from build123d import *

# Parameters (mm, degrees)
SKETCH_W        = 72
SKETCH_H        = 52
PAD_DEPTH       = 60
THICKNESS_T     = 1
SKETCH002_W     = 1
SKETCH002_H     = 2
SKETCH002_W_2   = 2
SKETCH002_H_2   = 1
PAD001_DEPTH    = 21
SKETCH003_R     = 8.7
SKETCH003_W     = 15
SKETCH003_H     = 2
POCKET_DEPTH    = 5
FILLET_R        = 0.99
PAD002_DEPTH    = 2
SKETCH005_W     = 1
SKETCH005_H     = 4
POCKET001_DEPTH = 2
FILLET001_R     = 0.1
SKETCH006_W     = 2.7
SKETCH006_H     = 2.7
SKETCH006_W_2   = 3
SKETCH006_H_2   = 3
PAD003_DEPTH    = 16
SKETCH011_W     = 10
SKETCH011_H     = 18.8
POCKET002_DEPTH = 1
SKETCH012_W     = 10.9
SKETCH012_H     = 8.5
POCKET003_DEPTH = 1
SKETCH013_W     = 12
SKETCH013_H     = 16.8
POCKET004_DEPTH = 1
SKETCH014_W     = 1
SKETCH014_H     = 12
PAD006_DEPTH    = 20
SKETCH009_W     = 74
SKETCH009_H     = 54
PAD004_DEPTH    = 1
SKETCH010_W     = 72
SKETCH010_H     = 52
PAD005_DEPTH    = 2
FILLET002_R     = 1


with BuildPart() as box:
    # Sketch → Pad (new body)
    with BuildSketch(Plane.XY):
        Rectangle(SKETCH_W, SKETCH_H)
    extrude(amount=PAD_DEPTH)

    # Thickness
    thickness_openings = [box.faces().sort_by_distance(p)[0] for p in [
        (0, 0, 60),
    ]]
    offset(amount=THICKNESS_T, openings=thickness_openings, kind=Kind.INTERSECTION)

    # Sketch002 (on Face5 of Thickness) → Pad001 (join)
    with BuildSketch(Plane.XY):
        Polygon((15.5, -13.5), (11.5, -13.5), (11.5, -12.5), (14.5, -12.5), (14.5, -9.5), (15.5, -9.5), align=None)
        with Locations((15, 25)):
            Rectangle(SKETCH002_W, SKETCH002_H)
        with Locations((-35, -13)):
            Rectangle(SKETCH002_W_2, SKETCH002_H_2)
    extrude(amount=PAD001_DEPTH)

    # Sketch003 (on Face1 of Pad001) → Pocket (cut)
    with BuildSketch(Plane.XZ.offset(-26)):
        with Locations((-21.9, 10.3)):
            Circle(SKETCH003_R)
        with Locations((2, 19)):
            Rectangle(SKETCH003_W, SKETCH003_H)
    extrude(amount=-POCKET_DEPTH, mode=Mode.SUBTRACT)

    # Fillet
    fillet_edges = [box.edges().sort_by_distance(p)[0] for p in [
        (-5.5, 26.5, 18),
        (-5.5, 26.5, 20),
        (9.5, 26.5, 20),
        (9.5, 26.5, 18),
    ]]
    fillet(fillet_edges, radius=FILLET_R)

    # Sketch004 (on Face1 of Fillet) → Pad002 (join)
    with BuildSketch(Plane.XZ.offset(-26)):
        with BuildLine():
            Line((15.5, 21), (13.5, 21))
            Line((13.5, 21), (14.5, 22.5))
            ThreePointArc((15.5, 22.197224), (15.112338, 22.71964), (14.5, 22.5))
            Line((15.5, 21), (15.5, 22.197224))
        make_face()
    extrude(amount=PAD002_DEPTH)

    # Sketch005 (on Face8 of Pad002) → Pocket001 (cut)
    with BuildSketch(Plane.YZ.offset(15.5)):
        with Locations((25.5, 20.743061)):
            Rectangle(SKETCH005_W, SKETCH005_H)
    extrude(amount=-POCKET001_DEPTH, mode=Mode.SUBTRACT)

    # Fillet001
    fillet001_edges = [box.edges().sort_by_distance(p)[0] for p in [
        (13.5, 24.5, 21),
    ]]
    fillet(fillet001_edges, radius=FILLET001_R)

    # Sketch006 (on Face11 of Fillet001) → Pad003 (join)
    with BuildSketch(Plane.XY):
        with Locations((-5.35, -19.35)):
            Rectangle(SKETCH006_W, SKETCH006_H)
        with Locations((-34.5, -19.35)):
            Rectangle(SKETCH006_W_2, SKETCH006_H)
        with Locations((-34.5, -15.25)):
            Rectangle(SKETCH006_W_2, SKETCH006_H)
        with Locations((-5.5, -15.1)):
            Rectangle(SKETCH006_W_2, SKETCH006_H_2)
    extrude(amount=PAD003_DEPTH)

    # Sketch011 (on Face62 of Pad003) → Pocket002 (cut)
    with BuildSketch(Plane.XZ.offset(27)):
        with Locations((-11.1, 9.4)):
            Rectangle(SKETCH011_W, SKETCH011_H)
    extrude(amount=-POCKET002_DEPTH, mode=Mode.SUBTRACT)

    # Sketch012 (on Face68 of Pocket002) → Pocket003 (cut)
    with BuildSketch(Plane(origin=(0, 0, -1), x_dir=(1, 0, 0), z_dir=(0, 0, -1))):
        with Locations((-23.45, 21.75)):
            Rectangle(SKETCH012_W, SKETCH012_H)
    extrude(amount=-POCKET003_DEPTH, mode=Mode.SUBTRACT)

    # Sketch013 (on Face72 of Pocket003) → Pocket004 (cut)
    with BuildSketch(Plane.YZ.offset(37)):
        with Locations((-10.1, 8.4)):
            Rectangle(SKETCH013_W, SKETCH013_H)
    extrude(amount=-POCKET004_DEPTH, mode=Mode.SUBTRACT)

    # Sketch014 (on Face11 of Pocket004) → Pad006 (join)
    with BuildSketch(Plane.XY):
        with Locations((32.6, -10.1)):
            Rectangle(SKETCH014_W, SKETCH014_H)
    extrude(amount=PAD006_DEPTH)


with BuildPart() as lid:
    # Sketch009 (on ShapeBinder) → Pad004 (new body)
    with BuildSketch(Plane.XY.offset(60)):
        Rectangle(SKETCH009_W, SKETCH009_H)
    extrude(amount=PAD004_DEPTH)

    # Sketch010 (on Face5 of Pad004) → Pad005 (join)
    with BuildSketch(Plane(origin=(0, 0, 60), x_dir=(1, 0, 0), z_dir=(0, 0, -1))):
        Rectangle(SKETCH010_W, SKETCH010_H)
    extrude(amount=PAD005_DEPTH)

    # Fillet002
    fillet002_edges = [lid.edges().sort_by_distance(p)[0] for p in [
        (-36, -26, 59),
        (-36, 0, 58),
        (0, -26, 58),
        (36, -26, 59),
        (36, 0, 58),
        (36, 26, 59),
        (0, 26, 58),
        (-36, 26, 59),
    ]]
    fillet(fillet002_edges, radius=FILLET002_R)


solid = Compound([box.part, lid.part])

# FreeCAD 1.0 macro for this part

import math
import FreeCAD as App
import Part
import Sketcher

V = App.Vector


def edges_at(feature, points):
    """Names of the edges that pass closest to the given points."""
    edges = feature.Shape.Edges
    near = lambda p: min(range(len(edges)), key=lambda i: edges[i].distToShape(Part.Vertex(*p))[0])
    return sorted({f"Edge{near(p) + 1}" for p in points})


def faces_at(feature, points):
    """Names of the faces that lie closest to the given points."""
    faces = feature.Shape.Faces
    near = lambda p: min(range(len(faces)), key=lambda i: faces[i].distToShape(Part.Vertex(*p))[0])
    return sorted({f"Face{near(p) + 1}" for p in points})


def add_polygon(sketch, points):
    """Adds a closed chain of lines whose ends are joined by coincident constraints."""
    first, n = sketch.GeometryCount, len(points)
    for a, b in zip(points, points[1:] + points[:1]):
        sketch.addGeometry(Part.LineSegment(App.Vector(*a, 0), App.Vector(*b, 0)), False)
    for i in range(n):
        sketch.addConstraint(Sketcher.Constraint("Coincident", first + i, 2, first + (i + 1) % n, 1))

doc = App.newDocument("Part")
body = doc.addObject("PartDesign::Body", "Body")

sketch1 = body.newObject("Sketcher::SketchObject", "Sketch")
sketch1.AttachmentSupport = (doc.getObject("XY_Plane"), [""])
sketch1.MapMode = "FlatFace"
add_polygon(sketch1, [(-36, 26), (-36, -26), (36, -26), (36, 26)])
sketch1.addConstraint(Sketcher.Constraint("Vertical", 0))
sketch1.addConstraint(Sketcher.Constraint("Horizontal", 1))
sketch1.addConstraint(Sketcher.Constraint("Vertical", 2))
sketch1.addConstraint(Sketcher.Constraint("Horizontal", 3))
sketch1.addConstraint(Sketcher.Constraint("Symmetric", 0, 2, 2, 2, -1, 1))
sketch1.addConstraint(Sketcher.Constraint("DistanceX", 1, 1, 1, 2, 72.0))
sketch1.addConstraint(Sketcher.Constraint("DistanceY", 0, 2, 0, 1, 52.0))
pad1 = body.newObject("PartDesign::Pad", "Pad")
pad1.Profile = sketch1
pad1.Length = 60
doc.recompute()

thickness = body.newObject("PartDesign::Thickness", "Thickness")
thickness.Base = (pad1, faces_at(pad1, [(0, 0, 60)]))
thickness.Value = 1
thickness.Reversed = False
thickness.Join = "Intersection"

sketch2 = body.newObject("Sketcher::SketchObject", "Sketch001")
sketch2.AttachmentSupport = (doc.getObject("XY_Plane"), [""])
sketch2.MapMode = "FlatFace"
add_polygon(sketch2, [(11.5, -13.5), (15.5, -13.5), (15.5, -9.5), (14.5, -9.5), (14.5, -12.5), (11.5, -12.5)])
add_polygon(sketch2, [(14.5, 26), (14.5, 24), (15.5, 24), (15.5, 26)])
add_polygon(sketch2, [(-36, -12.5), (-36, -13.5), (-34, -13.5), (-34, -12.5)])
sketch2.addConstraint(Sketcher.Constraint("Horizontal", 0))
sketch2.addConstraint(Sketcher.Constraint("Vertical", 1))
sketch2.addConstraint(Sketcher.Constraint("Horizontal", 2))
sketch2.addConstraint(Sketcher.Constraint("Vertical", 3))
sketch2.addConstraint(Sketcher.Constraint("Horizontal", 4))
sketch2.addConstraint(Sketcher.Constraint("Vertical", 5))
sketch2.addConstraint(Sketcher.Constraint("Vertical", 6))
sketch2.addConstraint(Sketcher.Constraint("Horizontal", 7))
sketch2.addConstraint(Sketcher.Constraint("Vertical", 8))
sketch2.addConstraint(Sketcher.Constraint("Horizontal", 9))
sketch2.addConstraint(Sketcher.Constraint("Vertical", 10))
sketch2.addConstraint(Sketcher.Constraint("Horizontal", 11))
sketch2.addConstraint(Sketcher.Constraint("Vertical", 12))
sketch2.addConstraint(Sketcher.Constraint("Horizontal", 13))
sketch2.addConstraint(Sketcher.Constraint("Horizontal", 5, 2, 10, 2))
sketch2.addConstraint(Sketcher.Constraint("Horizontal", 4, 2, 12, 2))
sketch2.addConstraint(Sketcher.Constraint("Vertical", 3, 2, 6, 2))
sketch2.addConstraint(Sketcher.Constraint("Vertical", 1, 2, 7, 2))
sketch2.addConstraint(Sketcher.Constraint("Equal", 0, 1))
sketch2.addConstraint(Sketcher.Constraint("Equal", 4, 3))
sketch2.addConstraint(Sketcher.Constraint("Equal", 13, 6))
sketch2.addConstraint(Sketcher.Constraint("DistanceX", 0, 1, 0, 2, 4.0))
sketch2.addConstraint(Sketcher.Constraint("DistanceX", 2, 2, 2, 1, 1.0))
sketch2.addConstraint(Sketcher.Constraint("DistanceX", 11, 1, 11, 2, 2.0))
sketch2.addConstraint(Sketcher.Constraint("DistanceY", -1, 1, 6, 2, 24.0))
sketch2.addConstraint(Sketcher.Constraint("DistanceX", 10, 2, -1, 1, 36.0))
sketch2.addConstraint(Sketcher.Constraint("DistanceX", -1, 1, 0, 2, 15.5))
sketch2.addConstraint(Sketcher.Constraint("DistanceY", 0, 2, -1, 1, 13.5))
pad2 = body.newObject("PartDesign::Pad", "Pad001")
pad2.Profile = sketch2
pad2.Length = 21

sketch3 = body.newObject("Sketcher::SketchObject", "Sketch002")
sketch3.AttachmentSupport = (doc.getObject("XZ_Plane"), [""])
sketch3.MapMode = "FlatFace"
sketch3.AttachmentOffset = App.Placement(V(0, 0, -26), App.Rotation())
sketch3.addGeometry(Part.Circle(V(-21.9, 10.3, 0), V(0, 0, 1), 8.7), False)
add_polygon(sketch3, [(-5.5, 20), (-5.5, 18), (9.5, 18), (9.5, 20)])
sketch3.addConstraint(Sketcher.Constraint("Vertical", 1))
sketch3.addConstraint(Sketcher.Constraint("Horizontal", 2))
sketch3.addConstraint(Sketcher.Constraint("Vertical", 3))
sketch3.addConstraint(Sketcher.Constraint("Horizontal", 4))
sketch3.addConstraint(Sketcher.Constraint("Diameter", 0, 17.4))
sketch3.addConstraint(Sketcher.Constraint("DistanceX", 2, 1, 2, 2, 15.0))
sketch3.addConstraint(Sketcher.Constraint("DistanceY", 1, 2, 1, 1, 2.0))
sketch3.addConstraint(Sketcher.Constraint("DistanceY", -1, 1, 1, 2, 18.0))
sketch3.addConstraint(Sketcher.Constraint("DistanceX", 0, 3, -1, 1, 21.9))
sketch3.addConstraint(Sketcher.Constraint("DistanceY", -1, 1, 0, 3, 10.3))
sketch3.addConstraint(Sketcher.Constraint("DistanceX", 1, 2, -1, 1, 5.5))
pocket1 = body.newObject("PartDesign::Pocket", "Pocket")
pocket1.Profile = sketch3
pocket1.Length = 5
doc.recompute()

fillet = body.newObject("PartDesign::Fillet", "Fillet")
fillet.Base = (pocket1, edges_at(pocket1, [
    (-5.5, 26.5, 18),
    (-5.5, 26.5, 20),
    (9.5, 26.5, 20),
    (9.5, 26.5, 18),
]))
fillet.Radius = 0.99

sketch4 = body.newObject("Sketcher::SketchObject", "Sketch003")
sketch4.AttachmentSupport = (doc.getObject("XZ_Plane"), [""])
sketch4.MapMode = "FlatFace"
sketch4.AttachmentOffset = App.Placement(V(0, 0, -26), App.Rotation())
sketch4.addGeometry(Part.LineSegment(V(13.5, 21, 0), V(15.5, 21, 0)), False)
sketch4.addGeometry(Part.LineSegment(V(15.5, 21, 0), V(15.5, 22.197224, 0)), False)
sketch4.addGeometry(Part.ArcOfCircle(Part.Circle(V(14.954163, 22.197224, 0), V(0, 0, 1), 0.545837), math.radians(-0.000006), math.radians(146.3099)), False)
sketch4.addGeometry(Part.LineSegment(V(14.5, 22.5, 0), V(13.5, 21, 0)), False)
sketch4.addConstraint(Sketcher.Constraint("Coincident", 0, 2, 1, 1))
sketch4.addConstraint(Sketcher.Constraint("Tangent", 1, 2, 2, 1))
sketch4.addConstraint(Sketcher.Constraint("Tangent", 2, 2, 3, 1))
sketch4.addConstraint(Sketcher.Constraint("Coincident", 3, 2, 0, 1))
sketch4.addConstraint(Sketcher.Constraint("Horizontal", 0))
sketch4.addConstraint(Sketcher.Constraint("Vertical", 1))
sketch4.addConstraint(Sketcher.Constraint("DistanceX", 0, 1, 0, 2, 2.0))
sketch4.addConstraint(Sketcher.Constraint("DistanceY", -1, 1, 0, 2, 21.0))
sketch4.addConstraint(Sketcher.Constraint("DistanceX", 2, 2, 1, 2, 1.0))
sketch4.addConstraint(Sketcher.Constraint("DistanceX", -1, 1, 0, 2, 15.5))
sketch4.addConstraint(Sketcher.Constraint("DistanceY", -1, 1, 2, 2, 22.5))
pad3 = body.newObject("PartDesign::Pad", "Pad002")
pad3.Profile = sketch4
pad3.Length = 2

sketch5 = body.newObject("Sketcher::SketchObject", "Sketch004")
sketch5.AttachmentSupport = (doc.getObject("YZ_Plane"), [""])
sketch5.MapMode = "FlatFace"
sketch5.AttachmentOffset = App.Placement(V(0, 0, 15.5), App.Rotation())
add_polygon(sketch5, [(25, 22.743061), (25, 18.743061), (26, 18.743061), (26, 22.743061)])
sketch5.addConstraint(Sketcher.Constraint("Vertical", 0))
sketch5.addConstraint(Sketcher.Constraint("Horizontal", 1))
sketch5.addConstraint(Sketcher.Constraint("Vertical", 2))
sketch5.addConstraint(Sketcher.Constraint("Horizontal", 3))
sketch5.addConstraint(Sketcher.Constraint("DistanceX", 1, 1, 1, 2, 1.0))
sketch5.addConstraint(Sketcher.Constraint("DistanceY", 0, 2, 0, 1, 4.0))
sketch5.addConstraint(Sketcher.Constraint("DistanceX", -1, 1, 0, 2, 25.0))
sketch5.addConstraint(Sketcher.Constraint("DistanceY", -1, 1, 0, 2, 18.743061))
pocket2 = body.newObject("PartDesign::Pocket", "Pocket001")
pocket2.Profile = sketch5
pocket2.Length = 2
doc.recompute()

fillet2 = body.newObject("PartDesign::Fillet", "Fillet001")
fillet2.Base = (pocket2, edges_at(pocket2, [(13.5, 24.5, 21)]))
fillet2.Radius = 0.1

sketch6 = body.newObject("Sketcher::SketchObject", "Sketch005")
sketch6.AttachmentSupport = (doc.getObject("XY_Plane"), [""])
sketch6.MapMode = "FlatFace"
add_polygon(sketch6, [(-6.7, -18), (-6.7, -20.7), (-4, -20.7), (-4, -18)])
add_polygon(sketch6, [(-36, -18), (-36, -20.7), (-33, -20.7), (-33, -18)])
add_polygon(sketch6, [(-36, -13.9), (-36, -16.6), (-33, -16.6), (-33, -13.9)])
add_polygon(sketch6, [(-7, -13.6), (-7, -16.6), (-4, -16.6), (-4, -13.6)])
sketch6.addConstraint(Sketcher.Constraint("Vertical", 0))
sketch6.addConstraint(Sketcher.Constraint("Horizontal", 1))
sketch6.addConstraint(Sketcher.Constraint("Vertical", 2))
sketch6.addConstraint(Sketcher.Constraint("Horizontal", 3))
sketch6.addConstraint(Sketcher.Constraint("Vertical", 4))
sketch6.addConstraint(Sketcher.Constraint("Horizontal", 5))
sketch6.addConstraint(Sketcher.Constraint("Vertical", 6))
sketch6.addConstraint(Sketcher.Constraint("Horizontal", 7))
sketch6.addConstraint(Sketcher.Constraint("Vertical", 8))
sketch6.addConstraint(Sketcher.Constraint("Horizontal", 9))
sketch6.addConstraint(Sketcher.Constraint("Vertical", 10))
sketch6.addConstraint(Sketcher.Constraint("Horizontal", 11))
sketch6.addConstraint(Sketcher.Constraint("Vertical", 12))
sketch6.addConstraint(Sketcher.Constraint("Horizontal", 13))
sketch6.addConstraint(Sketcher.Constraint("Vertical", 14))
sketch6.addConstraint(Sketcher.Constraint("Horizontal", 15))
sketch6.addConstraint(Sketcher.Constraint("Horizontal", 1, 2, 4, 2))
sketch6.addConstraint(Sketcher.Constraint("Horizontal", 3, 2, 6, 2))
sketch6.addConstraint(Sketcher.Constraint("Horizontal", 9, 2, 12, 2))
sketch6.addConstraint(Sketcher.Constraint("Vertical", 7, 2, 8, 2))
sketch6.addConstraint(Sketcher.Constraint("Vertical", 6, 2, 9, 2))
sketch6.addConstraint(Sketcher.Constraint("Vertical", 2, 2, 13, 2))
sketch6.addConstraint(Sketcher.Constraint("Equal", 11, 13))
sketch6.addConstraint(Sketcher.Constraint("Equal", 3, 0))
sketch6.addConstraint(Sketcher.Constraint("Equal", 6, 8))
sketch6.addConstraint(Sketcher.Constraint("Equal", 15, 12))
sketch6.addConstraint(Sketcher.Constraint("DistanceX", 5, 1, 5, 2, 3.0))
sketch6.addConstraint(Sketcher.Constraint("DistanceX", 1, 1, 1, 2, 2.7))
sketch6.addConstraint(Sketcher.Constraint("DistanceX", 1, 2, -1, 1, 4.0))
sketch6.addConstraint(Sketcher.Constraint("DistanceY", 2, 2, -1, 1, 18.0))
sketch6.addConstraint(Sketcher.Constraint("DistanceX", 4, 2, -1, 1, 36.0))
sketch6.addConstraint(Sketcher.Constraint("DistanceY", 8, 2, -1, 1, 16.6))
pad4 = body.newObject("PartDesign::Pad", "Pad003")
pad4.Profile = sketch6
pad4.Length = 16

sketch7 = body.newObject("Sketcher::SketchObject", "Sketch006")
sketch7.AttachmentSupport = (doc.getObject("XZ_Plane"), [""])
sketch7.MapMode = "FlatFace"
sketch7.AttachmentOffset = App.Placement(V(0, 0, 27), App.Rotation())
add_polygon(sketch7, [(-16.1, 18.8), (-16.1, 0), (-6.1, 0), (-6.1, 18.8)])
sketch7.addConstraint(Sketcher.Constraint("Vertical", 0))
sketch7.addConstraint(Sketcher.Constraint("Horizontal", 1))
sketch7.addConstraint(Sketcher.Constraint("Vertical", 2))
sketch7.addConstraint(Sketcher.Constraint("Horizontal", 3))
sketch7.addConstraint(Sketcher.Constraint("PointOnObject", 0, 2, -1))
sketch7.addConstraint(Sketcher.Constraint("DistanceX", 1, 1, 1, 2, 10.0))
sketch7.addConstraint(Sketcher.Constraint("DistanceY", 0, 2, 0, 1, 18.8))
sketch7.addConstraint(Sketcher.Constraint("DistanceX", 0, 2, -1, 1, 16.1))
pocket3 = body.newObject("PartDesign::Pocket", "Pocket002")
pocket3.Profile = sketch7
pocket3.Length = 1

sketch8 = body.newObject("Sketcher::SketchObject", "Sketch007")
sketch8.AttachmentSupport = (doc.getObject("XY_Plane"), [""])
sketch8.MapMode = "FlatFace"
sketch8.AttachmentOffset = App.Placement(V(0, 0, -1), App.Rotation())
add_polygon(sketch8, [(-28.9, -26), (-28.9, -17.5), (-18, -17.5), (-18, -26)])
sketch8.addConstraint(Sketcher.Constraint("Vertical", 0))
sketch8.addConstraint(Sketcher.Constraint("Horizontal", 1))
sketch8.addConstraint(Sketcher.Constraint("Vertical", 2))
sketch8.addConstraint(Sketcher.Constraint("Horizontal", 3))
sketch8.addConstraint(Sketcher.Constraint("DistanceX", 1, 1, 1, 2, 10.9))
sketch8.addConstraint(Sketcher.Constraint("DistanceY", 0, 1, 0, 2, 8.5))
sketch8.addConstraint(Sketcher.Constraint("DistanceX", 1, 2, -1, 1, 18.0))
sketch8.addConstraint(Sketcher.Constraint("DistanceY", 2, 2, -1, 1, 26.0))
pocket4 = body.newObject("PartDesign::Pocket", "Pocket003")
pocket4.Profile = sketch8
pocket4.Length = 1
pocket4.Reversed = True

sketch9 = body.newObject("Sketcher::SketchObject", "Sketch008")
sketch9.AttachmentSupport = (doc.getObject("YZ_Plane"), [""])
sketch9.MapMode = "FlatFace"
sketch9.AttachmentOffset = App.Placement(V(0, 0, 37), App.Rotation())
add_polygon(sketch9, [(-16.1, 16.8), (-16.1, 0), (-4.1, 0), (-4.1, 16.8)])
sketch9.addConstraint(Sketcher.Constraint("Vertical", 0))
sketch9.addConstraint(Sketcher.Constraint("Horizontal", 1))
sketch9.addConstraint(Sketcher.Constraint("Vertical", 2))
sketch9.addConstraint(Sketcher.Constraint("Horizontal", 3))
sketch9.addConstraint(Sketcher.Constraint("PointOnObject", 0, 2, -1))
sketch9.addConstraint(Sketcher.Constraint("DistanceX", 1, 1, 1, 2, 12.0))
sketch9.addConstraint(Sketcher.Constraint("DistanceY", 0, 2, 0, 1, 16.8))
sketch9.addConstraint(Sketcher.Constraint("DistanceX", 0, 2, -1, 1, 16.1))
pocket5 = body.newObject("PartDesign::Pocket", "Pocket004")
pocket5.Profile = sketch9
pocket5.Length = 1

sketch10 = body.newObject("Sketcher::SketchObject", "Sketch009")
sketch10.AttachmentSupport = (doc.getObject("XY_Plane"), [""])
sketch10.MapMode = "FlatFace"
add_polygon(sketch10, [(32.1, -4.1), (32.1, -16.1), (33.1, -16.1), (33.1, -4.1)])
sketch10.addConstraint(Sketcher.Constraint("Vertical", 0))
sketch10.addConstraint(Sketcher.Constraint("Horizontal", 1))
sketch10.addConstraint(Sketcher.Constraint("Vertical", 2))
sketch10.addConstraint(Sketcher.Constraint("Horizontal", 3))
sketch10.addConstraint(Sketcher.Constraint("DistanceX", 1, 1, 1, 2, 1.0))
sketch10.addConstraint(Sketcher.Constraint("DistanceY", 0, 2, 0, 1, 12.0))
sketch10.addConstraint(Sketcher.Constraint("DistanceX", -1, 1, 0, 2, 32.1))
sketch10.addConstraint(Sketcher.Constraint("DistanceY", 0, 2, -1, 1, 16.1))
pad5 = body.newObject("PartDesign::Pad", "Pad004")
pad5.Profile = sketch10
pad5.Length = 20
body2 = doc.addObject("PartDesign::Body", "Body001")

sketch11 = body2.newObject("Sketcher::SketchObject", "Sketch010")
sketch11.AttachmentSupport = (doc.getObject("XY_Plane001"), [""])
sketch11.MapMode = "FlatFace"
sketch11.AttachmentOffset = App.Placement(V(0, 0, 60), App.Rotation())
add_polygon(sketch11, [(-37, 27), (-37, -27), (37, -27), (37, 27)])
sketch11.addConstraint(Sketcher.Constraint("Vertical", 0))
sketch11.addConstraint(Sketcher.Constraint("Horizontal", 1))
sketch11.addConstraint(Sketcher.Constraint("Vertical", 2))
sketch11.addConstraint(Sketcher.Constraint("Horizontal", 3))
sketch11.addConstraint(Sketcher.Constraint("Symmetric", 0, 2, 2, 2, -1, 1))
sketch11.addConstraint(Sketcher.Constraint("DistanceX", 1, 1, 1, 2, 74.0))
sketch11.addConstraint(Sketcher.Constraint("DistanceY", 0, 2, 0, 1, 54.0))
pad6 = body2.newObject("PartDesign::Pad", "Pad005")
pad6.Profile = sketch11
pad6.Length = 1

sketch12 = body2.newObject("Sketcher::SketchObject", "Sketch011")
sketch12.AttachmentSupport = (doc.getObject("XY_Plane001"), [""])
sketch12.MapMode = "FlatFace"
sketch12.AttachmentOffset = App.Placement(V(0, 0, 60), App.Rotation())
add_polygon(sketch12, [(-36, -26), (-36, 26), (36, 26), (36, -26)])
sketch12.addConstraint(Sketcher.Constraint("Vertical", 0))
sketch12.addConstraint(Sketcher.Constraint("Horizontal", 1))
sketch12.addConstraint(Sketcher.Constraint("Vertical", 2))
sketch12.addConstraint(Sketcher.Constraint("Horizontal", 3))
sketch12.addConstraint(Sketcher.Constraint("Symmetric", 0, 2, 2, 2, -1, 1))
sketch12.addConstraint(Sketcher.Constraint("DistanceX", 1, 1, 1, 2, 72.0))
sketch12.addConstraint(Sketcher.Constraint("DistanceY", 0, 1, 0, 2, 52.0))
pad7 = body2.newObject("PartDesign::Pad", "Pad006")
pad7.Profile = sketch12
pad7.Length = 2
pad7.Reversed = True
doc.recompute()

fillet3 = body2.newObject("PartDesign::Fillet", "Fillet002")
fillet3.Base = (pad7, edges_at(pad7, [
    (-36, -26, 59),
    (-36, 0, 58),
    (0, -26, 58),
    (36, -26, 59),
    (36, 0, 58),
    (36, 26, 59),
    (0, 26, 58),
    (-36, 26, 59),
]))
fillet3.Radius = 1

doc.recompute()
